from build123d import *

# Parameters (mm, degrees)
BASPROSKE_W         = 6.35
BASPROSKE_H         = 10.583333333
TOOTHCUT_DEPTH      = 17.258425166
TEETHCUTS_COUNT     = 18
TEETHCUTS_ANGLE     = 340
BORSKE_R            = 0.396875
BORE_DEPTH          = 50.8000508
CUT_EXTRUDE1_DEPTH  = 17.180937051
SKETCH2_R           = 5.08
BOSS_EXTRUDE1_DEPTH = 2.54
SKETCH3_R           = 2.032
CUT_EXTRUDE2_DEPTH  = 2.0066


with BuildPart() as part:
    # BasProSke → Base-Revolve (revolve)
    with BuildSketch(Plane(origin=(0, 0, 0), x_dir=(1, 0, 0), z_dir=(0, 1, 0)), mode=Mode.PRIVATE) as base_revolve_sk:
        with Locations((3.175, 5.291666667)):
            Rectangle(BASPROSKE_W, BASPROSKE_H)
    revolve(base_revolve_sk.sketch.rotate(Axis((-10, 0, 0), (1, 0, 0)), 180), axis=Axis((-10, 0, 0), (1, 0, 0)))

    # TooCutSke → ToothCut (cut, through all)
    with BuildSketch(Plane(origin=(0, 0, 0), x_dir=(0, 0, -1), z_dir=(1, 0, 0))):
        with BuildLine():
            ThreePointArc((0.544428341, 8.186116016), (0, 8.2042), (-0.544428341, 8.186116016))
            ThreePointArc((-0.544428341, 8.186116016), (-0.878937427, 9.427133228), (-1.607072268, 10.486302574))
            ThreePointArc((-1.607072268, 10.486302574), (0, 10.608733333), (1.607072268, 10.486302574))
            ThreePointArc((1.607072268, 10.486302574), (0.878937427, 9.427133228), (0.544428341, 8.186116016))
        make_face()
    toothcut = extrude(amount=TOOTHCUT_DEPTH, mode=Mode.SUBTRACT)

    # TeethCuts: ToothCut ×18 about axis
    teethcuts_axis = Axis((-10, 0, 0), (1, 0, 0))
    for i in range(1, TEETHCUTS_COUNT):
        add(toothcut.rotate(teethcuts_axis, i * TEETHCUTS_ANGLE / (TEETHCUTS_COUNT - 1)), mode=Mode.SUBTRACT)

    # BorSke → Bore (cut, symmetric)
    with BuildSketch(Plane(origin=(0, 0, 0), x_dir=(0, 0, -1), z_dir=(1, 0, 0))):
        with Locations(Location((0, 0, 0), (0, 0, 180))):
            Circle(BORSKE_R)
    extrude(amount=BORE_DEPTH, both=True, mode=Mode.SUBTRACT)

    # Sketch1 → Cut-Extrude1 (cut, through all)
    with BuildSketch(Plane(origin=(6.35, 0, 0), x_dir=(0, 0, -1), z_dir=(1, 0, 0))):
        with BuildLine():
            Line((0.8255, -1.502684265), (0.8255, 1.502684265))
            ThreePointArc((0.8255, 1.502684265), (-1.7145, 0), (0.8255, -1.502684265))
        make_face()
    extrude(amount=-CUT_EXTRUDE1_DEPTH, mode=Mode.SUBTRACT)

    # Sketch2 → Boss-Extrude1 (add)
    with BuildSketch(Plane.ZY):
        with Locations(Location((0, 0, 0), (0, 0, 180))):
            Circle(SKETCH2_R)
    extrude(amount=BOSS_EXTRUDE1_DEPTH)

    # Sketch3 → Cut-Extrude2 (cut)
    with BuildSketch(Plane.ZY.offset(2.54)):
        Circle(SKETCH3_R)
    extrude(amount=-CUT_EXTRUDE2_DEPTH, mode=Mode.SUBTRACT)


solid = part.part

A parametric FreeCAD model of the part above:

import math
import FreeCAD as App
import Part
import Sketcher

V = App.Vector
Q = App.Units.Quantity

doc = App.newDocument("Part")
body = doc.addObject("PartDesign::Body", "Body")

sketch1 = body.newObject("Sketcher::SketchObject", "Sketch")
sketch1.AttachmentSupport = (doc.getObject("XZ_Plane"), [""])
sketch1.MapMode = "FlatFace"
sketch1.addGeometry(Part.LineSegment(V(0, -11, 0), V(0, 0, 0)), False)
sketch1.addGeometry(Part.LineSegment(V(0, 0, 0), V(6, 0, 0)), False)
sketch1.addGeometry(Part.LineSegment(V(6, 0, 0), V(6, -11, 0)), False)
sketch1.addGeometry(Part.LineSegment(V(6, -11, 0), V(0, -11, 0)), False)
sketch1.addConstraint(Sketcher.Constraint("Coincident", 0, 2, 1, 1))
sketch1.addConstraint(Sketcher.Constraint("Coincident", 1, 2, 2, 1))
sketch1.addConstraint(Sketcher.Constraint("Coincident", 2, 2, 3, 1))
sketch1.addConstraint(Sketcher.Constraint("Coincident", 3, 2, 0, 1))
sketch1.addConstraint(Sketcher.Constraint("Vertical", 0))
sketch1.addConstraint(Sketcher.Constraint("Horizontal", 1))
sketch1.addConstraint(Sketcher.Constraint("Vertical", 2))
sketch1.addConstraint(Sketcher.Constraint("Horizontal", 3))
sketch1.addConstraint(Sketcher.Constraint("Coincident", 0, 2, -1, 1))
sketch1.addConstraint(Sketcher.Constraint("DistanceX", 1, 1, 1, 2, Q("0.25 in")))
sketch1.addConstraint(Sketcher.Constraint("DistanceY", 0, 1, 0, 2, 10.583333))
revolution = body.newObject("PartDesign::Revolution", "Revolution")
revolution.Profile = sketch1
revolution.ReferenceAxis = (sketch1, ["H_Axis"])
revolution.Angle = 360

sketch2 = body.newObject("Sketcher::SketchObject", "Sketch001")
sketch2.AttachmentSupport = (doc.getObject("YZ_Plane"), [""])
sketch2.MapMode = "FlatFace"
sketch2.addGeometry(Part.ArcOfCircle(Part.Circle(V(0, 0, 0), V(0, 0, 1), 8.2), math.radians(-3.8), math.radians(3.8)), False)
sketch2.addGeometry(Part.ArcOfCircle(Part.Circle(V(7.8, -4.3, 0), V(0, 0, 1), 3.8), math.radians(46), math.radians(85)), False)
sketch2.addGeometry(Part.ArcOfCircle(Part.Circle(V(0, 0, 0), V(0, 0, 1), 10.6), math.radians(-8.71), math.radians(8.71)), False)
sketch2.addGeometry(Part.ArcOfCircle(Part.Circle(V(7.8, 4.3, 0), V(0, 0, 1), 3.8), math.radians(-85), math.radians(-46)), False)
sketch2.addConstraint(Sketcher.Constraint("Coincident", 0, 1, 1, 2))
sketch2.addConstraint(Sketcher.Constraint("Coincident", 1, 1, 2, 1))
sketch2.addConstraint(Sketcher.Constraint("Coincident", 2, 2, 3, 2))
sketch2.addConstraint(Sketcher.Constraint("Coincident", 3, 1, 0, 2))
sketch2.addConstraint(Sketcher.Constraint("Coincident", 0, 3, -1, 1))
sketch2.addConstraint(Sketcher.Constraint("Coincident", 2, 3, -1, 1))
sketch2.addConstraint(Sketcher.Constraint("Equal", 1, 3))
sketch2.addConstraint(Sketcher.Constraint("Symmetric", 1, 3, 3, 3, -1))
sketch2.addConstraint(Sketcher.Constraint("Radius", 1, Q("0.15 in")))
sketch2.addConstraint(Sketcher.Constraint("Radius", 0, Q("0.323 in")))
sketch2.addConstraint(Sketcher.Constraint("Radius", 2, 10.608733))
sketch2.addConstraint(Sketcher.Constraint("DistanceY", 0, 1, 2, 2, 2.151501))
sketch2.addConstraint(Sketcher.Constraint("DistanceX", -1, 1, 1, 3, 7.829258))
pocket1 = body.newObject("PartDesign::Pocket", "Pocket")
pocket1.Profile = sketch2
pocket1.Type = "ThroughAll"
pocket1.Reversed = True
doc.recompute()

polarpattern = body.newObject("PartDesign::PolarPattern", "PolarPattern")
polarpattern.Originals = [pocket1]
polarpattern.Axis = (doc.getObject("X_Axis"), [""])
polarpattern.Angle = 360
polarpattern.Occurrences = 18
body.Tip = polarpattern

sketch3 = body.newObject("Sketcher::SketchObject", "Sketch002")
sketch3.AttachmentSupport = (doc.getObject("YZ_Plane"), [""])
sketch3.MapMode = "FlatFace"
sketch3.addGeometry(Part.Circle(V(0, 0, 0), V(0, 0, 1), 0.4), False)
sketch3.addConstraint(Sketcher.Constraint("Coincident", 0, 3, -1, 1))
sketch3.addConstraint(Sketcher.Constraint("Diameter", 0, Q("0.03125 in")))
pocket2 = body.newObject("PartDesign::Pocket", "Pocket001")
pocket2.Profile = sketch3
pocket2.Length = 101.600102
pocket2.Midplane = True

sketch4 = body.newObject("Sketcher::SketchObject", "Sketch003")
sketch4.AttachmentSupport = (doc.getObject("YZ_Plane"), [""])
sketch4.MapMode = "FlatFace"
sketch4.AttachmentOffset = App.Placement(V(0, 0, 0.25 * 25.4), App.Rotation())
sketch4.addGeometry(Part.LineSegment(V(-1.5, -0.8, 0), V(1.5, -0.8, 0)), False)
sketch4.addGeometry(Part.ArcOfCircle(Part.Circle(V(0, 0, 0), V(0, 0, 1), 1.7), math.radians(-29), math.radians(209)), False)
sketch4.addConstraint(Sketcher.Constraint("Coincident", 0, 1, 1, 2))
sketch4.addConstraint(Sketcher.Constraint("Coincident", 1, 1, 0, 2))
sketch4.addConstraint(Sketcher.Constraint("Horizontal", 0))
sketch4.addConstraint(Sketcher.Constraint("Coincident", 1, 3, -1, 1))
sketch4.addConstraint(Sketcher.Constraint("Radius", 1, Q("0.0675 in")))
sketch4.addConstraint(Sketcher.Constraint("DistanceY", 0, 1, -1, 1, Q("0.0325 in")))
pocket3 = body.newObject("PartDesign::Pocket", "Pocket002")
pocket3.Profile = sketch4
pocket3.Type = "ThroughAll"

sketch5 = body.newObject("Sketcher::SketchObject", "Sketch004")
sketch5.AttachmentSupport = (doc.getObject("YZ_Plane"), [""])
sketch5.MapMode = "FlatFace"
sketch5.addGeometry(Part.Circle(V(0, 0, 0), V(0, 0, 1), 5), False)
sketch5.addConstraint(Sketcher.Constraint("Coincident", 0, 3, -1, 1))
sketch5.addConstraint(Sketcher.Constraint("Diameter", 0, Q("0.4 in")))
pad1 = body.newObject("PartDesign::Pad", "Pad")
pad1.Profile = sketch5
pad1.Length = Q("0.1 in")
pad1.Reversed = True

sketch6 = body.newObject("Sketcher::SketchObject", "Sketch005")
sketch6.AttachmentSupport = (doc.getObject("YZ_Plane"), [""])
sketch6.MapMode = "FlatFace"
sketch6.AttachmentOffset = App.Placement(V(0, 0, -0.1 * 25.4), App.Rotation())
sketch6.addGeometry(Part.Circle(V(0, 0, 0), V(0, 0, 1), 2), False)
sketch6.addConstraint(Sketcher.Constraint("Coincident", 0, 3, -1, 1))
sketch6.addConstraint(Sketcher.Constraint("Diameter", 0, Q("0.16 in")))
pocket4 = body.newObject("PartDesign::Pocket", "Pocket003")
pocket4.Profile = sketch6
pocket4.Length = Q("0.079 in")
pocket4.Reversed = True

doc.recompute()
